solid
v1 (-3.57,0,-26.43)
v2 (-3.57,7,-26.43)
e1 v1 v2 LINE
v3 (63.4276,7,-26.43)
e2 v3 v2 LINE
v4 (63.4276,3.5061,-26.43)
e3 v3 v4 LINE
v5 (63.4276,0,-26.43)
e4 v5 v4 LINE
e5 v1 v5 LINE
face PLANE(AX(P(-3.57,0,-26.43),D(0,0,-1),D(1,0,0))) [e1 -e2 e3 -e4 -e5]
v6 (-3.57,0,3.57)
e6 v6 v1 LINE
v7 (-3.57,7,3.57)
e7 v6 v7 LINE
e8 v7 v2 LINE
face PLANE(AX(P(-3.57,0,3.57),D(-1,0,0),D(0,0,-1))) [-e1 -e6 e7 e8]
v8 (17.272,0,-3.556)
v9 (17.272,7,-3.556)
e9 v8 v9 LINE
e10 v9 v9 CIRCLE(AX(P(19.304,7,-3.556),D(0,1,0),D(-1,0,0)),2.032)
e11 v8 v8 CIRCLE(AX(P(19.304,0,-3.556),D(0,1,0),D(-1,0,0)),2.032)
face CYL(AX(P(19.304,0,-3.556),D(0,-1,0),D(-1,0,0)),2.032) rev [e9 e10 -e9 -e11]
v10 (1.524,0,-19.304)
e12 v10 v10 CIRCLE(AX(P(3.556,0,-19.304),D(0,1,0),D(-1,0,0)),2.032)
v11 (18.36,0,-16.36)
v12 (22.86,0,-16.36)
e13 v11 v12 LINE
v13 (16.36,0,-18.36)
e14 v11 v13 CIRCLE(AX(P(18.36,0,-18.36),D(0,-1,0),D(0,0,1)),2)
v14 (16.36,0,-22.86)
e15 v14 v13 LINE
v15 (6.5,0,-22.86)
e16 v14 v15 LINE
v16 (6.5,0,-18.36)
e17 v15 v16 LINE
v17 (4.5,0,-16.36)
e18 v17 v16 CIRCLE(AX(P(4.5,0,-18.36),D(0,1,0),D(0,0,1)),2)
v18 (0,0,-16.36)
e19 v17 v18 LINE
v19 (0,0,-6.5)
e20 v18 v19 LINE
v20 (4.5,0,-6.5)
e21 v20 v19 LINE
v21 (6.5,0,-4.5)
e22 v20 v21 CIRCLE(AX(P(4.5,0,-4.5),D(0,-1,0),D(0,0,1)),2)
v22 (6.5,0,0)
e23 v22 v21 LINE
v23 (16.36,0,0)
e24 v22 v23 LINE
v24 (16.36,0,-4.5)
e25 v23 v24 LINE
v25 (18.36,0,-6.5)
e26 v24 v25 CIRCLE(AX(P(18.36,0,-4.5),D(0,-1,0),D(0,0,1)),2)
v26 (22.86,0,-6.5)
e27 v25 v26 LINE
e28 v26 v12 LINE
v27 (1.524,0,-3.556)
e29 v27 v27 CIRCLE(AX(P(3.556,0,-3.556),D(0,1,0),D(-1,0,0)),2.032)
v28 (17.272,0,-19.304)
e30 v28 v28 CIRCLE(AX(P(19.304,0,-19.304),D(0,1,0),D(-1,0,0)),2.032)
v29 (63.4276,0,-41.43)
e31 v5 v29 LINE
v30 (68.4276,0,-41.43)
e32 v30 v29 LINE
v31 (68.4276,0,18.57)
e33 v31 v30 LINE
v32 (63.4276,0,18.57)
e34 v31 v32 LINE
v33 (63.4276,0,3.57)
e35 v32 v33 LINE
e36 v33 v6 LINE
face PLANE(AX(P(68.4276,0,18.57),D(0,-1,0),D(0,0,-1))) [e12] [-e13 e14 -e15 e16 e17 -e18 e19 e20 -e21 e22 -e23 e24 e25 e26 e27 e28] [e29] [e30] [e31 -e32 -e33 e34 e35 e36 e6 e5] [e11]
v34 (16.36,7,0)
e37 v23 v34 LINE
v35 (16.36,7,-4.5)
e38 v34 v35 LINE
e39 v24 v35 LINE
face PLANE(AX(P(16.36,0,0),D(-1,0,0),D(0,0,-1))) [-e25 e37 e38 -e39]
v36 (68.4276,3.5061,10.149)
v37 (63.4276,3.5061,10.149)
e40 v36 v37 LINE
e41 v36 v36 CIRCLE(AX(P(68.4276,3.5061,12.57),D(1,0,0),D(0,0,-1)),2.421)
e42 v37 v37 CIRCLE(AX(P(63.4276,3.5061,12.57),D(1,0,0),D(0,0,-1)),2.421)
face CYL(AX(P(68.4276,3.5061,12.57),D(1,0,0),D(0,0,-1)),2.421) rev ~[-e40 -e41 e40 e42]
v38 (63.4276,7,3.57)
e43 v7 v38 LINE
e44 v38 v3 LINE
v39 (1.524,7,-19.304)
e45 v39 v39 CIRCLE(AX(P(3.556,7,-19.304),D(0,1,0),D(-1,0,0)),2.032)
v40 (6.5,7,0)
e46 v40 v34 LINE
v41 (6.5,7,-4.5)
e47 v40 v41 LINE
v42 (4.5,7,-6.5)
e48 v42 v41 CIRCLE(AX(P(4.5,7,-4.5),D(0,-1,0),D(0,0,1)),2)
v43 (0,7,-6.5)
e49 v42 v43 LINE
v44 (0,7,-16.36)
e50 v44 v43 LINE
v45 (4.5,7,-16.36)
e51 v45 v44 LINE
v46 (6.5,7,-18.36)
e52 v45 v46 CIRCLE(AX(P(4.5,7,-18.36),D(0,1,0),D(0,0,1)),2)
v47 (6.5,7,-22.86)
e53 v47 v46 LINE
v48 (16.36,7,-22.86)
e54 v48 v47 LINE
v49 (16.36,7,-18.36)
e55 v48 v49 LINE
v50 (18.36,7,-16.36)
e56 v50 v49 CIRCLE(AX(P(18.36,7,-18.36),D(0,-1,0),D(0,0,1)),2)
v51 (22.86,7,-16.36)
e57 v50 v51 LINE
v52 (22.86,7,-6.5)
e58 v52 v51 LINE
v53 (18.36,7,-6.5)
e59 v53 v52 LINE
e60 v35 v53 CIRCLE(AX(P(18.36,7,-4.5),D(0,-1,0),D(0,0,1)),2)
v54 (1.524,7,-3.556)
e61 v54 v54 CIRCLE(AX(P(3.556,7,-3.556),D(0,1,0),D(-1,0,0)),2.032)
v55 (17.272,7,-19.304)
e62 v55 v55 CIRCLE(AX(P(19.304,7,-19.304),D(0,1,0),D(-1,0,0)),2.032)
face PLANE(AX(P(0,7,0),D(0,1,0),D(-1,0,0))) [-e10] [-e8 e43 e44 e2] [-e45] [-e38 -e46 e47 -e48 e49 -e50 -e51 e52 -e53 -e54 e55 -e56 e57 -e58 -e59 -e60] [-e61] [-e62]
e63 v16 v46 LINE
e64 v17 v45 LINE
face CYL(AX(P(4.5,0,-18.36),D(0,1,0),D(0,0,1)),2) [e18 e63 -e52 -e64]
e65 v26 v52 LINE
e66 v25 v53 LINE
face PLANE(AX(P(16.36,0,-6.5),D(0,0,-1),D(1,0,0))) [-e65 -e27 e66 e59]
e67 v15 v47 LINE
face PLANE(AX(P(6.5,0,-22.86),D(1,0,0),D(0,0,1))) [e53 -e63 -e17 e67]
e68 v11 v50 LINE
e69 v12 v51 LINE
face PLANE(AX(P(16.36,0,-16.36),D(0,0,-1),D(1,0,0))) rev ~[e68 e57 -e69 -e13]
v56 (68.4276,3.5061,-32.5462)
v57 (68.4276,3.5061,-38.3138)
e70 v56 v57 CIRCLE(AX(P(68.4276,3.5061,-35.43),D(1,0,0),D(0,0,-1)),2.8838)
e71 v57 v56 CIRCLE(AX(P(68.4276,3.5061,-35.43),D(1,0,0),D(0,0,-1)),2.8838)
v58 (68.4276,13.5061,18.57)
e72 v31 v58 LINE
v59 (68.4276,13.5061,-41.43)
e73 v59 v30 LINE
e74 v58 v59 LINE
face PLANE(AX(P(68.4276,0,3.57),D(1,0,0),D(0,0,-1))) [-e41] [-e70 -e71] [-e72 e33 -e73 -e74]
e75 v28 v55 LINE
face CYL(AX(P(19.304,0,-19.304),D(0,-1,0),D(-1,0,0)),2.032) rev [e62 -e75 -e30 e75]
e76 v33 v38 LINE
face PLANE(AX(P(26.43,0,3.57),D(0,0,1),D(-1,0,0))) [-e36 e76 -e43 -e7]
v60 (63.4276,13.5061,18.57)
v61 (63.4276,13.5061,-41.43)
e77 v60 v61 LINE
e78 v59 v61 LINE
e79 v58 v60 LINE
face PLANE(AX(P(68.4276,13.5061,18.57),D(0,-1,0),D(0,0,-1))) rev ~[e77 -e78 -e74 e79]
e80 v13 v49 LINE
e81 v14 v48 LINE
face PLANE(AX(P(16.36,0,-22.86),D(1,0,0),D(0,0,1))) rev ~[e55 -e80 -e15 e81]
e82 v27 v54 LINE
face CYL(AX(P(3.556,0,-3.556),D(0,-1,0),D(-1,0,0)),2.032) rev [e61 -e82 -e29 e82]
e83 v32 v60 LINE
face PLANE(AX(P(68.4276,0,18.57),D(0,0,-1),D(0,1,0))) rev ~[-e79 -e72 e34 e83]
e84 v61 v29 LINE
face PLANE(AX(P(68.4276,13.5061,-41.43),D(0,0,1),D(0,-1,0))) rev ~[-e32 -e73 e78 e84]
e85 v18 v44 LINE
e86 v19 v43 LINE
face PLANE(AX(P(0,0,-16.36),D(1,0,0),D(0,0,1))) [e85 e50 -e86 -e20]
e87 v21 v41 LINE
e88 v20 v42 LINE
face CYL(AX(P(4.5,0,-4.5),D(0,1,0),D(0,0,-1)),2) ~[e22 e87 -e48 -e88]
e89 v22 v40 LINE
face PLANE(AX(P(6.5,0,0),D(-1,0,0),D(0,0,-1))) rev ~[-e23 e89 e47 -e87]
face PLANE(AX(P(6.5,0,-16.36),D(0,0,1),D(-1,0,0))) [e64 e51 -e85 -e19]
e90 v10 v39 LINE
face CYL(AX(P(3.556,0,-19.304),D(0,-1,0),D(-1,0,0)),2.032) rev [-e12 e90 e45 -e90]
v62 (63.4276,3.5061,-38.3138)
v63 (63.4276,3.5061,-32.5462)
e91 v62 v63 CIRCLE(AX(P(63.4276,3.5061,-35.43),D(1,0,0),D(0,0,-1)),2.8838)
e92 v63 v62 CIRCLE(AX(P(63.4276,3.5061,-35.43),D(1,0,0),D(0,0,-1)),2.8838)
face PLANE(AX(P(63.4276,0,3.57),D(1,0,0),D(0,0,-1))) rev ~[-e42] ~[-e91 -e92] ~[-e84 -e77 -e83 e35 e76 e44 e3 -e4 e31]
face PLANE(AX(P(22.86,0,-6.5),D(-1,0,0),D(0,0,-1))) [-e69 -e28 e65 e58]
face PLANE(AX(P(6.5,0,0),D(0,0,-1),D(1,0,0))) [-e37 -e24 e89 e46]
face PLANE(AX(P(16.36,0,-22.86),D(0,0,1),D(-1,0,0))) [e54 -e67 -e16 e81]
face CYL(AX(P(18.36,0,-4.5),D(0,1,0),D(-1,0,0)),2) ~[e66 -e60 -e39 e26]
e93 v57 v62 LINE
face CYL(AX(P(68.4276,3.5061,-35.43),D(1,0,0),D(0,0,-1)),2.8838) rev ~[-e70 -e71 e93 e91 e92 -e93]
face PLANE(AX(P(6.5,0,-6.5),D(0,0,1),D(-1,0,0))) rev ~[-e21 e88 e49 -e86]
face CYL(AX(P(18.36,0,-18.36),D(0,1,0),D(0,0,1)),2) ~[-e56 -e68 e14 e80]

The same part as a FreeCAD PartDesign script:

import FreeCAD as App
import Part
import Sketcher


def edges_at(feature, points):
    """Names of the edges that pass closest to the given points."""
    edges = feature.Shape.Edges
    near = lambda p: min(range(len(edges)), key=lambda i: edges[i].distToShape(Part.Vertex(*p))[0])
    return sorted({f"Edge{near(p) + 1}" for p in points})

doc = App.newDocument("Part")
body = doc.addObject("PartDesign::Body", "Body")

# Sketch on XZ plane
sketch1 = body.newObject("Sketcher::SketchObject", "Sketch")
sketch1.AttachmentSupport = (doc.getObject("XZ_Plane"), [""])
sketch1.MapMode = "FlatFace"
sketch1.addGeometry(Part.LineSegment(App.Vector(-3.6, -26.4, 0), App.Vector(-3.6, 3.6, 0)), False)
sketch1.addGeometry(Part.LineSegment(App.Vector(-3.6, 3.6, 0), App.Vector(68.4, 3.6, 0)), False)
sketch1.addGeometry(Part.LineSegment(App.Vector(68.4, 3.6, 0), App.Vector(68.4, -26.4, 0)), False)
sketch1.addGeometry(Part.LineSegment(App.Vector(68.4, -26.4, 0), App.Vector(-3.6, -26.4, 0)), False)
sketch1.addGeometry(Part.LineSegment(App.Vector(6.5, -6.5, 0), App.Vector(0, -6.5, 0)), False)
sketch1.addGeometry(Part.LineSegment(App.Vector(0, -6.5, 0), App.Vector(0, -16.4, 0)), False)
sketch1.addGeometry(Part.LineSegment(App.Vector(0, -16.4, 0), App.Vector(6.5, -16.4, 0)), False)
sketch1.addGeometry(Part.LineSegment(App.Vector(6.5, -16.4, 0), App.Vector(6.5, -22.9, 0)), False)
sketch1.addGeometry(Part.LineSegment(App.Vector(6.5, -22.9, 0), App.Vector(16.4, -22.9, 0)), False)
sketch1.addGeometry(Part.LineSegment(App.Vector(16.4, -22.9, 0), App.Vector(16.4, -16.4, 0)), False)
sketch1.addGeometry(Part.LineSegment(App.Vector(16.4, -16.4, 0), App.Vector(22.9, -16.4, 0)), False)
sketch1.addGeometry(Part.LineSegment(App.Vector(22.9, -16.4, 0), App.Vector(22.9, -6.5, 0)), False)
sketch1.addGeometry(Part.LineSegment(App.Vector(22.9, -6.5, 0), App.Vector(16.4, -6.5, 0)), False)
sketch1.addGeometry(Part.LineSegment(App.Vector(16.4, -6.5, 0), App.Vector(16.4, 0, 0)), False)
sketch1.addGeometry(Part.LineSegment(App.Vector(16.4, 0, 0), App.Vector(6.5, 0, 0)), False)
sketch1.addGeometry(Part.LineSegment(App.Vector(6.5, 0, 0), App.Vector(6.5, -6.5, 0)), False)
sketch1.addGeometry(Part.Circle(App.Vector(3.6, -3.6, 0), App.Vector(0, 0, 1), 2), False)
sketch1.addGeometry(Part.Circle(App.Vector(3.6, -19.3, 0), App.Vector(0, 0, 1), 2), False)
sketch1.addGeometry(Part.Circle(App.Vector(19.3, -3.6, 0), App.Vector(0, 0, 1), 2), False)
sketch1.addGeometry(Part.Circle(App.Vector(19.3, -19.3, 0), App.Vector(0, 0, 1), 2), False)
sketch1.addConstraint(Sketcher.Constraint("Coincident", 0, 2, 1, 1))
sketch1.addConstraint(Sketcher.Constraint("Coincident", 1, 2, 2, 1))
sketch1.addConstraint(Sketcher.Constraint("Coincident", 2, 2, 3, 1))
sketch1.addConstraint(Sketcher.Constraint("Coincident", 3, 2, 0, 1))
sketch1.addConstraint(Sketcher.Constraint("Coincident", 4, 2, 5, 1))
sketch1.addConstraint(Sketcher.Constraint("Coincident", 5, 2, 6, 1))
sketch1.addConstraint(Sketcher.Constraint("Coincident", 6, 2, 7, 1))
sketch1.addConstraint(Sketcher.Constraint("Coincident", 7, 2, 8, 1))
sketch1.addConstraint(Sketcher.Constraint("Coincident", 8, 2, 9, 1))
sketch1.addConstraint(Sketcher.Constraint("Coincident", 9, 2, 10, 1))
sketch1.addConstraint(Sketcher.Constraint("Coincident", 10, 2, 11, 1))
sketch1.addConstraint(Sketcher.Constraint("Coincident", 11, 2, 12, 1))
sketch1.addConstraint(Sketcher.Constraint("Coincident", 12, 2, 13, 1))
sketch1.addConstraint(Sketcher.Constraint("Coincident", 13, 2, 14, 1))
sketch1.addConstraint(Sketcher.Constraint("Coincident", 14, 2, 15, 1))
sketch1.addConstraint(Sketcher.Constraint("Coincident", 15, 2, 4, 1))
sketch1.addConstraint(Sketcher.Constraint("Vertical", 0))
sketch1.addConstraint(Sketcher.Constraint("Horizontal", 1))
sketch1.addConstraint(Sketcher.Constraint("Vertical", 2))
sketch1.addConstraint(Sketcher.Constraint("Horizontal", 3))
sketch1.addConstraint(Sketcher.Constraint("Horizontal", 4))
sketch1.addConstraint(Sketcher.Constraint("Vertical", 5))
sketch1.addConstraint(Sketcher.Constraint("Horizontal", 6))
sketch1.addConstraint(Sketcher.Constraint("Vertical", 7))
sketch1.addConstraint(Sketcher.Constraint("Horizontal", 8))
sketch1.addConstraint(Sketcher.Constraint("Vertical", 9))
sketch1.addConstraint(Sketcher.Constraint("Horizontal", 10))
sketch1.addConstraint(Sketcher.Constraint("Vertical", 11))
sketch1.addConstraint(Sketcher.Constraint("Horizontal", 12))
sketch1.addConstraint(Sketcher.Constraint("Vertical", 13))
sketch1.addConstraint(Sketcher.Constraint("Horizontal", 14))
sketch1.addConstraint(Sketcher.Constraint("Vertical", 15))
sketch1.addConstraint(Sketcher.Constraint("Equal", 16, 17))
sketch1.addConstraint(Sketcher.Constraint("Equal", 17, 18))
sketch1.addConstraint(Sketcher.Constraint("Equal", 18, 19))
sketch1.addConstraint(Sketcher.Constraint("PointOnObject", 4, 2, -2))
sketch1.addConstraint(Sketcher.Constraint("PointOnObject", 13, 2, -1))
sketch1.addConstraint(Sketcher.Constraint("Horizontal", 16, 3, 18, 3))
sketch1.addConstraint(Sketcher.Constraint("Horizontal", 17, 3, 19, 3))
sketch1.addConstraint(Sketcher.Constraint("Horizontal", 6, 2, 9, 2))
sketch1.addConstraint(Sketcher.Constraint("Horizontal", 4, 2, 11, 2))
sketch1.addConstraint(Sketcher.Constraint("Vertical", 16, 3, 17, 3))
sketch1.addConstraint(Sketcher.Constraint("Vertical", 18, 3, 19, 3))
sketch1.addConstraint(Sketcher.Constraint("Vertical", 9, 2, 12, 2))
sketch1.addConstraint(Sketcher.Constraint("Vertical", 7, 2, 14, 2))
sketch1.addConstraint(Sketcher.Constraint("Equal", 6, 10))
sketch1.addConstraint(Sketcher.Constraint("Equal", 14, 5))
sketch1.addConstraint(Sketcher.Constraint("Equal", 12, 7))
sketch1.addConstraint(Sketcher.Constraint("Equal", 9, 13))
sketch1.addConstraint(Sketcher.Constraint("DistanceY", 0, 1, 0, 2, 30.0))
sketch1.addConstraint(Sketcher.Constraint("Diameter", 16, 4.064))
sketch1.addConstraint(Sketcher.Constraint("DistanceX", 4, 2, 4, 1, 6.5))
sketch1.addConstraint(Sketcher.Constraint("DistanceX", 0, 2, -1, 1, 3.57))
sketch1.addConstraint(Sketcher.Constraint("DistanceY", -1, 1, 0, 2, 3.57))
sketch1.addConstraint(Sketcher.Constraint("DistanceY", 7, 2, -1, 1, 22.86))
sketch1.addConstraint(Sketcher.Constraint("DistanceX", -1, 1, 16, 3, 3.556))
sketch1.addConstraint(Sketcher.Constraint("DistanceY", 16, 3, -1, 1, 3.556))
sketch1.addConstraint(Sketcher.Constraint("DistanceY", 7, 2, 17, 3, 3.556))
sketch1.addConstraint(Sketcher.Constraint("DistanceX", 19, 3, 10, 2, 3.556))
sketch1.addConstraint(Sketcher.Constraint("DistanceX", 1, 1, 1, 2, 71.9976))
pad1 = body.newObject("PartDesign::Pad", "Pad")
pad1.Profile = sketch1
pad1.Length = 7
pad1.Reversed = True
doc.recompute()

fillet = body.newObject("PartDesign::Fillet", "Fillet")
fillet.Base = (pad1, edges_at(pad1, [
    (6.5, 3.5, -16.36),
    (16.36, 3.5, -16.36),
    (16.36, 3.5, -6.5),
    (6.5, 3.5, -6.5),
]))
fillet.Radius = 2

# Sketch on YZ plane
sketch2 = body.newObject("Sketcher::SketchObject", "Sketch001")
sketch2.AttachmentSupport = (doc.getObject("YZ_Plane"), [""])
sketch2.MapMode = "FlatFace"
sketch2.AttachmentOffset = App.Placement(App.Vector(0, 0, 68.4276), App.Rotation())
sketch2.addGeometry(Part.LineSegment(App.Vector(13.5, -41.4, 0), App.Vector(13.5, 18.6, 0)), False)
sketch2.addGeometry(Part.LineSegment(App.Vector(13.5, 18.6, 0), App.Vector(0, 18.6, 0)), False)
sketch2.addGeometry(Part.LineSegment(App.Vector(0, 18.6, 0), App.Vector(0, -26.4, 0)), False)
sketch2.addGeometry(Part.LineSegment(App.Vector(0, -26.4, 0), App.Vector(0, -41.4, 0)), False)
sketch2.addGeometry(Part.LineSegment(App.Vector(0, -41.4, 0), App.Vector(13.5, -41.4, 0)), False)
sketch2.addGeometry(Part.Circle(App.Vector(3.5, 12.6, 0), App.Vector(0, 0, 1), 2.4), False)
sketch2.addGeometry(Part.Circle(App.Vector(3.5, -35.4, 0), App.Vector(0, 0, 1), 2.9), False)
sketch2.addConstraint(Sketcher.Constraint("Coincident", 0, 2, 1, 1))
sketch2.addConstraint(Sketcher.Constraint("Coincident", 1, 2, 2, 1))
sketch2.addConstraint(Sketcher.Constraint("Coincident", 2, 2, 3, 1))
sketch2.addConstraint(Sketcher.Constraint("Coincident", 3, 2, 4, 1))
sketch2.addConstraint(Sketcher.Constraint("Coincident", 4, 2, 0, 1))
sketch2.addConstraint(Sketcher.Constraint("Vertical", 0))
sketch2.addConstraint(Sketcher.Constraint("Horizontal", 1))
sketch2.addConstraint(Sketcher.Constraint("Vertical", 2))
sketch2.addConstraint(Sketcher.Constraint("Vertical", 3))
sketch2.addConstraint(Sketcher.Constraint("Horizontal", 4))
sketch2.addConstraint(Sketcher.Constraint("PointOnObject", 1, 2, -2))
sketch2.addConstraint(Sketcher.Constraint("Vertical", 5, 3, 6, 3))
sketch2.addConstraint(Sketcher.Constraint("DistanceY", 0, 1, 0, 2, 60.0))
sketch2.addConstraint(Sketcher.Constraint("DistanceY", 3, 2, 3, 1, 15.0))
sketch2.addConstraint(Sketcher.Constraint("DistanceX", 5, 3, 0, 2, 10.0))
sketch2.addConstraint(Sketcher.Constraint("Diameter", 5, 4.842))
sketch2.addConstraint(Sketcher.Constraint("DistanceY", 6, 3, 5, 3, 48.0))
sketch2.addConstraint(Sketcher.Constraint("DistanceY", 5, 3, 0, 2, 6.0))
sketch2.addConstraint(Sketcher.Constraint("Diameter", 6, 5.7676))
sketch2.addConstraint(Sketcher.Constraint("DistanceX", 1, 2, 1, 1, 13.506))
sketch2.addConstraint(Sketcher.Constraint("DistanceY", -1, 1, 5, 3, 12.57))
pad2 = body.newObject("PartDesign::Pad", "Pad001")
pad2.Profile = sketch2
pad2.Length = 5
pad2.Reversed = True

doc.recompute()
